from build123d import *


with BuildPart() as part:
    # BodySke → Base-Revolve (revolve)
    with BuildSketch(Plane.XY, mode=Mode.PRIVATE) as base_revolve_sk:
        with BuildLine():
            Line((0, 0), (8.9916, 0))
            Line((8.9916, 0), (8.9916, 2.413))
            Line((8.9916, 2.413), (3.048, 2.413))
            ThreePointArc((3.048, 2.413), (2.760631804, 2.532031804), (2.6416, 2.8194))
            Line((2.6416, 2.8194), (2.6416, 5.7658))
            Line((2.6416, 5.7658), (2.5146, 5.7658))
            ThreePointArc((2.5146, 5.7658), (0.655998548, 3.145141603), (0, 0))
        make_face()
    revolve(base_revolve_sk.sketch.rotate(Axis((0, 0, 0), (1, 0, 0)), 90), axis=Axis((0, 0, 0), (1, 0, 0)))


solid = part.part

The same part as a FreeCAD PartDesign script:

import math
import FreeCAD as App
import Part
import Sketcher

V = App.Vector
Q = App.Units.Quantity

doc = App.newDocument("Part")
body = doc.addObject("PartDesign::Body", "Body")

sketch1 = body.newObject("Sketcher::SketchObject", "Sketch")
sketch1.AttachmentSupport = (doc.getObject("XY_Plane"), [""])
sketch1.MapMode = "FlatFace"
sketch1.addGeometry([
    Part.LineSegment(V(0, 0, 0), V(8.99, 0, 0)),
    Part.LineSegment(V(8.99, 0, 0), V(8.99, 2.41, 0)),
    Part.LineSegment(V(8.99, 2.41, 0), V(3.05, 2.41, 0)),
    Part.ArcOfCircle(Part.Circle(V(3.05, 2.82, 0), V(0, 0, 1), 0.41), math.radians(180), math.radians(270)),
    Part.LineSegment(V(2.64, 2.82, 0), V(2.64, 5.77, 0)),
    Part.LineSegment(V(2.64, 5.77, 0), V(2.51, 5.77, 0)),
    Part.ArcOfCircle(Part.Circle(V(7.87, 0, 0), V(0, 0, 1), 7.87), math.radians(133), math.radians(180)),
], False)
sketch1.addConstraint([
    Sketcher.Constraint("Coincident", 0, 2, 1, 1),
    Sketcher.Constraint("Coincident", 1, 2, 2, 1),
    Sketcher.Constraint("Tangent", 2, 2, 3, 2),
    Sketcher.Constraint("Tangent", 3, 1, 4, 1),
    Sketcher.Constraint("Coincident", 4, 2, 5, 1),
    Sketcher.Constraint("Coincident", 5, 2, 6, 1),
    Sketcher.Constraint("Coincident", 6, 2, 0, 1),
    Sketcher.Constraint("Horizontal", 0),
    Sketcher.Constraint("Vertical", 1),
    Sketcher.Constraint("Horizontal", 2),
    Sketcher.Constraint("Vertical", 4),
    Sketcher.Constraint("Horizontal", 5),
    Sketcher.Constraint("Coincident", 6, 2, -1, 1),
    Sketcher.Constraint("PointOnObject", 6, 3, -1),
    Sketcher.Constraint("Radius", 3, Q("0.016 in")),
    Sketcher.Constraint("DistanceX", 0, 1, 0, 2, Q("0.354 in")),
    Sketcher.Constraint("DistanceX", 2, 2, 2, 1, Q("0.234 in")),
    Sketcher.Constraint("DistanceX", 5, 2, 5, 1, Q("0.005 in")),
    Sketcher.Constraint("DistanceY", 1, 1, 1, 2, Q("0.095 in")),
    Sketcher.Constraint("DistanceY", 4, 1, 4, 2, Q("0.116 in")),
])
revolution = body.newObject("PartDesign::Revolution", "Revolution")
revolution.Profile = sketch1
revolution.ReferenceAxis = (sketch1, ["H_Axis"])
revolution.Angle = 360

doc.recompute()
